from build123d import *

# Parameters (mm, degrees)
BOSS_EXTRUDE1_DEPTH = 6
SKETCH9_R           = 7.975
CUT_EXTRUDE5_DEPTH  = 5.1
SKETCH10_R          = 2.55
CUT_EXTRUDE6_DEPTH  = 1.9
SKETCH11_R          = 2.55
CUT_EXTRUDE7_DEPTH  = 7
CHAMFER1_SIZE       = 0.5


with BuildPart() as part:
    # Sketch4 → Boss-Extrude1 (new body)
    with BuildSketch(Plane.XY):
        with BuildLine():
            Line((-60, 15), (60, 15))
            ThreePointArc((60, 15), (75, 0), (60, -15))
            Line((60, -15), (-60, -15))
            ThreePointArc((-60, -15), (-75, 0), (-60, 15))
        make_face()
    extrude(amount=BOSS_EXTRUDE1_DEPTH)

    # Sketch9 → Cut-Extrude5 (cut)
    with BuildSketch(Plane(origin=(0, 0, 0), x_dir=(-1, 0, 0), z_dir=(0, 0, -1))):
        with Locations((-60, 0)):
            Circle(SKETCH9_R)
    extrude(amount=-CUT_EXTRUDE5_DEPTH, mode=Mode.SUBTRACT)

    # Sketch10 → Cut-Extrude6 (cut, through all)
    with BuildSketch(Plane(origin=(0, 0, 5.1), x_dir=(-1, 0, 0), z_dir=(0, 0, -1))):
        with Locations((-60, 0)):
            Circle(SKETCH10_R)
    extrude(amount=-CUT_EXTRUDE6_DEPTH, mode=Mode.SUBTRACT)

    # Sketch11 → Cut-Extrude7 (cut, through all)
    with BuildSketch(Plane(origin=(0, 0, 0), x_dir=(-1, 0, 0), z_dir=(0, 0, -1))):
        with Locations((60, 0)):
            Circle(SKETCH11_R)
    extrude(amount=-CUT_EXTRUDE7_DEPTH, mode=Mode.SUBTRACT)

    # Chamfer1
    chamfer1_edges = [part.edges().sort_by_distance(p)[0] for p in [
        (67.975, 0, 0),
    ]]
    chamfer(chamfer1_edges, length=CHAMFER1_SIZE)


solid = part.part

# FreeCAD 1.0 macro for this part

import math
import FreeCAD as App
import Part
import Sketcher
from FreeCAD import Vector


def edges_at(feature, points):
    """Names of the edges that pass closest to the given points."""
    edges = feature.Shape.Edges
    near = lambda p: min(range(len(edges)), key=lambda i: edges[i].distToShape(Part.Vertex(*p))[0])
    return sorted({f"Edge{near(p) + 1}" for p in points})

doc = App.newDocument("Part")
body = doc.addObject("PartDesign::Body", "Body")

# Sketch on XY plane
sketch1 = body.newObject("Sketcher::SketchObject", "Sketch")
sketch1.AttachmentSupport = (doc.getObject("XY_Plane"), [""])
sketch1.MapMode = "FlatFace"
sketch1.addGeometry([
    Part.LineSegment(Vector(60, 15, 0), Vector(-60, 15, 0)),
    Part.ArcOfCircle(Part.Circle(Vector(-60, 0, 0), Vector(0, 0, 1), 15), math.radians(90), math.radians(270)),
    Part.LineSegment(Vector(-60, -15, 0), Vector(60, -15, 0)),
    Part.ArcOfCircle(Part.Circle(Vector(60, 0, 0), Vector(0, 0, 1), 15), math.radians(-90), math.radians(90)),
], False)
sketch1.addConstraint([
    Sketcher.Constraint("Tangent", 0, 2, 1, 1),
    Sketcher.Constraint("Tangent", 1, 2, 2, 1),
    Sketcher.Constraint("Tangent", 2, 2, 3, 1),
    Sketcher.Constraint("Tangent", 3, 2, 0, 1),
    Sketcher.Constraint("Horizontal", 0),
    Sketcher.Constraint("Horizontal", 2),
    Sketcher.Constraint("Symmetric", 1, 3, 3, 3, -1, 1),
    Sketcher.Constraint("Radius", 1, 15.0),
    Sketcher.Constraint("DistanceX", 0, 2, 0, 1, 120.0),
])
pad1 = body.newObject("PartDesign::Pad", "Pad")
pad1.Profile = sketch1
pad1.Length = 6

# Sketch on XY plane
sketch2 = body.newObject("Sketcher::SketchObject", "Sketch001")
sketch2.AttachmentSupport = (doc.getObject("XY_Plane"), [""])
sketch2.MapMode = "FlatFace"
sketch2.addGeometry(Part.Circle(Vector(60, 0, 0), Vector(0, 0, 1), 8), False)
sketch2.addConstraint([
    Sketcher.Constraint("PointOnObject", 0, 3, -1),
    Sketcher.Constraint("Diameter", 0, 15.95),
    Sketcher.Constraint("DistanceX", -1, 1, 0, 3, 60.0),
])
pocket1 = body.newObject("PartDesign::Pocket", "Pocket")
pocket1.Profile = sketch2
pocket1.Length = 5.1
pocket1.Reversed = True

# Sketch on XY plane
sketch3 = body.newObject("Sketcher::SketchObject", "Sketch002")
sketch3.AttachmentSupport = (doc.getObject("XY_Plane"), [""])
sketch3.MapMode = "FlatFace"
sketch3.AttachmentOffset = App.Placement(Vector(0, 0, 5.1), App.Rotation())
sketch3.addGeometry(Part.Circle(Vector(60, 0, 0), Vector(0, 0, 1), 2.5), False)
sketch3.addConstraint([
    Sketcher.Constraint("PointOnObject", 0, 3, -1),
    Sketcher.Constraint("Diameter", 0, 5.1),
    Sketcher.Constraint("DistanceX", -1, 1, 0, 3, 60.0),
])
pocket2 = body.newObject("PartDesign::Pocket", "Pocket001")
pocket2.Profile = sketch3
pocket2.Type = "ThroughAll"
pocket2.Reversed = True

# Sketch on XY plane
sketch4 = body.newObject("Sketcher::SketchObject", "Sketch003")
sketch4.AttachmentSupport = (doc.getObject("XY_Plane"), [""])
sketch4.MapMode = "FlatFace"
sketch4.addGeometry(Part.Circle(Vector(-60, 0, 0), Vector(0, 0, 1), 2.5), False)
sketch4.addConstraint([
    Sketcher.Constraint("PointOnObject", 0, 3, -1),
    Sketcher.Constraint("Diameter", 0, 5.1),
    Sketcher.Constraint("DistanceX", 0, 3, -1, 1, 60.0),
])
pocket3 = body.newObject("PartDesign::Pocket", "Pocket002")
pocket3.Profile = sketch4
pocket3.Type = "ThroughAll"
pocket3.Reversed = True
doc.recompute()

chamfer = body.newObject("PartDesign::Chamfer", "Chamfer")
chamfer.Base = (pocket3, edges_at(pocket3, [(67.975, 0, 0)]))
chamfer.Size = 0.5

doc.recompute()
